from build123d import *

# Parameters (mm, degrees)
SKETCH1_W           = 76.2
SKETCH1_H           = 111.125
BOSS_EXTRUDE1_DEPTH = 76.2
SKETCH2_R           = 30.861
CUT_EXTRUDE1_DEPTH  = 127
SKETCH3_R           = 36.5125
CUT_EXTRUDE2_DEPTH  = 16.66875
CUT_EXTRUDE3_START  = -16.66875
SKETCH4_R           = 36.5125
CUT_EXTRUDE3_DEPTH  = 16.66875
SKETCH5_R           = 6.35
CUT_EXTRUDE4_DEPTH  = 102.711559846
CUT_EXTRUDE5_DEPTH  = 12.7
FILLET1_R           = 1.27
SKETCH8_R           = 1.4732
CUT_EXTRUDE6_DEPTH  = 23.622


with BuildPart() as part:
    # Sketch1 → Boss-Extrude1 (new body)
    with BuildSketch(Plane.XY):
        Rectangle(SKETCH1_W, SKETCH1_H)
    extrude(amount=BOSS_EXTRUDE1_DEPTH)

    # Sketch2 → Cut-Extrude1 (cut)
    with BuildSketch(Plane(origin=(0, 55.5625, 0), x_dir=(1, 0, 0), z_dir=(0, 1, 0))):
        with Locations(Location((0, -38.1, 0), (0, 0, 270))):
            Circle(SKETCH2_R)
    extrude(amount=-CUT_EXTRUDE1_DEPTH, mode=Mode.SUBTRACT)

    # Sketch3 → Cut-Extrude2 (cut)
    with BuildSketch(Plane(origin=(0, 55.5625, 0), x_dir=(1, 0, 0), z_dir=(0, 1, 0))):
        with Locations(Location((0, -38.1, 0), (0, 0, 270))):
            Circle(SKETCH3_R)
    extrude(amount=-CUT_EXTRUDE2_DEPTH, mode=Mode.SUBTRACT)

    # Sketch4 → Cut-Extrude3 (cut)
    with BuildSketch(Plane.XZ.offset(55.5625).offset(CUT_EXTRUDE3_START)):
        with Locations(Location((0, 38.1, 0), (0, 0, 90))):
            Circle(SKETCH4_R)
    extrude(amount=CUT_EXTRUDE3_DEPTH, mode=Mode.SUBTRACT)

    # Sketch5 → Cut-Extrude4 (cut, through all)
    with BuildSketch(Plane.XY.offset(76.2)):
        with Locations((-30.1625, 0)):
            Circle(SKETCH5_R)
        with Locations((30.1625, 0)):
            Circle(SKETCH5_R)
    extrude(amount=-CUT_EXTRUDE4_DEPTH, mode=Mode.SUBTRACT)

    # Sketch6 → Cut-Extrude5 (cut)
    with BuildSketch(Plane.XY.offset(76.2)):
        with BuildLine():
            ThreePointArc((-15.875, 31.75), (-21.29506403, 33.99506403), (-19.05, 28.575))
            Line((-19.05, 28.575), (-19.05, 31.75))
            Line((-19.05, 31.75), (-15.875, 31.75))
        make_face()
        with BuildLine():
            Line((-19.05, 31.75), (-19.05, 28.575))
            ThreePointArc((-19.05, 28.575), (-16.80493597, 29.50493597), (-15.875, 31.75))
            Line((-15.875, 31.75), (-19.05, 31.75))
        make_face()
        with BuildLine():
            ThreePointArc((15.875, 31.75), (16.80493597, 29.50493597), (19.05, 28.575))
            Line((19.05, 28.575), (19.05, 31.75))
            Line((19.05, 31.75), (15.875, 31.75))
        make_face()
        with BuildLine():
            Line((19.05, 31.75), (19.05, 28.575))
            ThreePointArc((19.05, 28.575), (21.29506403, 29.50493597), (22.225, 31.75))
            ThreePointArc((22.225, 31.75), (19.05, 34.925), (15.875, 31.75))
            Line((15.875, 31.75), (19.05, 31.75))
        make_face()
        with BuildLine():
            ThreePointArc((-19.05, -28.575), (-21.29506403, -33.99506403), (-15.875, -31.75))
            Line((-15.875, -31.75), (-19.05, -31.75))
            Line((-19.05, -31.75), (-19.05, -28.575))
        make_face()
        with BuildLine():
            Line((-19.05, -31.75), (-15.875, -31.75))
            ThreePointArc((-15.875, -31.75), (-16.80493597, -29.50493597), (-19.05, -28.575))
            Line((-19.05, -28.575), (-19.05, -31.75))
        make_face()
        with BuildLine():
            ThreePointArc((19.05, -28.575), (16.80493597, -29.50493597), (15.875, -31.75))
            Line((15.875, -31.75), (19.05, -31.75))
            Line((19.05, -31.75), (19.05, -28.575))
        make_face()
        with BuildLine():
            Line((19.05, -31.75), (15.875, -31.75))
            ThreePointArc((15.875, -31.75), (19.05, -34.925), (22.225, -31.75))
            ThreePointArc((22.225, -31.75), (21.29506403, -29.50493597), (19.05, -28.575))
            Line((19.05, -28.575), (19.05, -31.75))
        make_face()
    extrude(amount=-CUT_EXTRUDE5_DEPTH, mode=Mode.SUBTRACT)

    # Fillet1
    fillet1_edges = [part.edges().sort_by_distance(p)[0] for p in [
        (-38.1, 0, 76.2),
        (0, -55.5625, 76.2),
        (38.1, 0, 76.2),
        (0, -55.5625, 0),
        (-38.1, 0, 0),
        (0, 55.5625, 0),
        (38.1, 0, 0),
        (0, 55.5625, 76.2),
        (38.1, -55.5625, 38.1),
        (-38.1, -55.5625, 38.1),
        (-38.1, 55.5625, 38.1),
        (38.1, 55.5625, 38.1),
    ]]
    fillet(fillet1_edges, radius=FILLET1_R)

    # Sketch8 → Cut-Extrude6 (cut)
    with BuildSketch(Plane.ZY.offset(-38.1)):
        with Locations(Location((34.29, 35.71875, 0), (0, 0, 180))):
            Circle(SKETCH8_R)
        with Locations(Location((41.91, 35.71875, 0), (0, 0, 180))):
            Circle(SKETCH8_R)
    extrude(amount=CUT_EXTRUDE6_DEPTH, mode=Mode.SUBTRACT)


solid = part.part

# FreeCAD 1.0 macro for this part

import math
import FreeCAD as App
import Part
import Sketcher

V = App.Vector
Q = App.Units.Quantity


def edges_at(feature, points):
    """Names of the edges that pass closest to the given points."""
    edges = feature.Shape.Edges
    near = lambda p: min(range(len(edges)), key=lambda i: edges[i].distToShape(Part.Vertex(*p))[0])
    return sorted({f"Edge{near(p) + 1}" for p in points})

doc = App.newDocument("Part")
body = doc.addObject("PartDesign::Body", "Body")

sketch1 = body.newObject("Sketcher::SketchObject", "Sketch")
sketch1.AttachmentSupport = (doc.getObject("XY_Plane"), [""])
sketch1.MapMode = "FlatFace"
sketch1.addGeometry(Part.LineSegment(V(-38, 56, 0), V(-38, -56, 0)), False)
sketch1.addGeometry(Part.LineSegment(V(-38, -56, 0), V(38, -56, 0)), False)
sketch1.addGeometry(Part.LineSegment(V(38, -56, 0), V(38, 56, 0)), False)
sketch1.addGeometry(Part.LineSegment(V(38, 56, 0), V(-38, 56, 0)), False)
sketch1.addConstraint(Sketcher.Constraint("Coincident", 0, 2, 1, 1))
sketch1.addConstraint(Sketcher.Constraint("Coincident", 1, 2, 2, 1))
sketch1.addConstraint(Sketcher.Constraint("Coincident", 2, 2, 3, 1))
sketch1.addConstraint(Sketcher.Constraint("Coincident", 3, 2, 0, 1))
sketch1.addConstraint(Sketcher.Constraint("Vertical", 0))
sketch1.addConstraint(Sketcher.Constraint("Horizontal", 1))
sketch1.addConstraint(Sketcher.Constraint("Vertical", 2))
sketch1.addConstraint(Sketcher.Constraint("Horizontal", 3))
sketch1.addConstraint(Sketcher.Constraint("Symmetric", 0, 2, 2, 2, -1, 1))
sketch1.addConstraint(Sketcher.Constraint("DistanceX", 1, 1, 1, 2, Q("3 in")))
sketch1.addConstraint(Sketcher.Constraint("DistanceY", 0, 2, 0, 1, Q("4.375 in")))
pad1 = body.newObject("PartDesign::Pad", "Pad")
pad1.Profile = sketch1
pad1.Length = Q("3 in")

sketch2 = body.newObject("Sketcher::SketchObject", "Sketch001")
sketch2.AttachmentSupport = (doc.getObject("XZ_Plane"), [""])
sketch2.MapMode = "FlatFace"
sketch2.AttachmentOffset = App.Placement(V(0, 0, -2.1875 * 25.4), App.Rotation())
sketch2.addGeometry(Part.Circle(V(0, 38, 0), V(0, 0, 1), 31), False)
sketch2.addConstraint(Sketcher.Constraint("PointOnObject", 0, 3, -2))
sketch2.addConstraint(Sketcher.Constraint("Diameter", 0, Q("2.43 in")))
sketch2.addConstraint(Sketcher.Constraint("DistanceY", -1, 1, 0, 3, Q("1.5 in")))
pocket1 = body.newObject("PartDesign::Pocket", "Pocket")
pocket1.Profile = sketch2
pocket1.Length = Q("5 in")
pocket1.Reversed = True

sketch3 = body.newObject("Sketcher::SketchObject", "Sketch002")
sketch3.AttachmentSupport = (doc.getObject("XZ_Plane"), [""])
sketch3.MapMode = "FlatFace"
sketch3.AttachmentOffset = App.Placement(V(0, 0, -2.1875 * 25.4), App.Rotation())
sketch3.addGeometry(Part.Circle(V(0, 38, 0), V(0, 0, 1), 37), False)
sketch3.addConstraint(Sketcher.Constraint("PointOnObject", 0, 3, -2))
sketch3.addConstraint(Sketcher.Constraint("Diameter", 0, Q("2.875 in")))
sketch3.addConstraint(Sketcher.Constraint("DistanceY", -1, 1, 0, 3, Q("1.5 in")))
pocket2 = body.newObject("PartDesign::Pocket", "Pocket001")
pocket2.Profile = sketch3
pocket2.Length = Q("0.65625 in")
pocket2.Reversed = True

sketch4 = body.newObject("Sketcher::SketchObject", "Sketch003")
sketch4.AttachmentSupport = (doc.getObject("XZ_Plane"), [""])
sketch4.MapMode = "FlatFace"
sketch4.AttachmentOffset = App.Placement(V(0, 0, 1.53125 * 25.4), App.Rotation())
sketch4.addGeometry(Part.Circle(V(0, 38, 0), V(0, 0, 1), 37), False)
sketch4.addConstraint(Sketcher.Constraint("PointOnObject", 0, 3, -2))
sketch4.addConstraint(Sketcher.Constraint("Diameter", 0, Q("2.875 in")))
sketch4.addConstraint(Sketcher.Constraint("DistanceY", -1, 1, 0, 3, Q("1.5 in")))
pocket3 = body.newObject("PartDesign::Pocket", "Pocket002")
pocket3.Profile = sketch4
pocket3.Length = Q("0.65625 in")
pocket3.Reversed = True

sketch5 = body.newObject("Sketcher::SketchObject", "Sketch004")
sketch5.AttachmentSupport = (doc.getObject("XY_Plane"), [""])
sketch5.MapMode = "FlatFace"
sketch5.AttachmentOffset = App.Placement(V(0, 0, 3 * 25.4), App.Rotation())
sketch5.addGeometry(Part.Circle(V(-30, 0, 0), V(0, 0, 1), 6), False)
sketch5.addGeometry(Part.Circle(V(30, 0, 0), V(0, 0, 1), 6), False)
sketch5.addConstraint(Sketcher.Constraint("Equal", 0, 1))
sketch5.addConstraint(Sketcher.Constraint("Symmetric", 0, 3, 1, 3, -1, 1))
sketch5.addConstraint(Sketcher.Constraint("PointOnObject", 0, 3, -1))
sketch5.addConstraint(Sketcher.Constraint("Diameter", 0, Q("0.5 in")))
sketch5.addConstraint(Sketcher.Constraint("DistanceX", 0, 3, -1, 1, Q("1.1875 in")))
pocket4 = body.newObject("PartDesign::Pocket", "Pocket003")
pocket4.Profile = sketch5
pocket4.Type = "ThroughAll"

sketch6 = body.newObject("Sketcher::SketchObject", "Sketch005")
sketch6.AttachmentSupport = (doc.getObject("XY_Plane"), [""])
sketch6.MapMode = "FlatFace"
sketch6.AttachmentOffset = App.Placement(V(0, 0, 3 * 25.4), App.Rotation())
sketch6.addGeometry(Part.ArcOfCircle(Part.Circle(V(-19.1, 31.8, 0), V(0, 0, 1), 3.2), math.radians(0), math.radians(270)), False)
sketch6.addGeometry(Part.ArcOfCircle(Part.Circle(V(-19.1, 31.8, 0), V(0, 0, 1), 3.2), math.radians(-90), math.radians(0)), False)
sketch6.addGeometry(Part.ArcOfCircle(Part.Circle(V(19.1, 31.8, 0), V(0, 0, 1), 3.2), math.radians(-180), math.radians(-90)), False)
sketch6.addGeometry(Part.ArcOfCircle(Part.Circle(V(19, 31.8, 0), V(0, 0, 1), 3.2), math.radians(-90), math.radians(0)), False)
sketch6.addGeometry(Part.ArcOfCircle(Part.Circle(V(19.1, 31.8, 0), V(0, 0, 1), 3.2), math.radians(0), math.radians(180)), False)
sketch6.addGeometry(Part.ArcOfCircle(Part.Circle(V(-19.1, -31.8, 0), V(0, 0, 1), 3.2), math.radians(90), math.radians(360)), False)
sketch6.addGeometry(Part.ArcOfCircle(Part.Circle(V(-19.1, -31.8, 0), V(0, 0, 1), 3.2), math.radians(0), math.radians(90)), False)
sketch6.addGeometry(Part.ArcOfCircle(Part.Circle(V(19.1, -31.8, 0), V(0, 0, 1), 3.2), math.radians(90), math.radians(180)), False)
sketch6.addGeometry(Part.ArcOfCircle(Part.Circle(V(19.1, -31.8, 0), V(0, 0, 1), 3.2), math.radians(180), math.radians(360)), False)
sketch6.addGeometry(Part.ArcOfCircle(Part.Circle(V(19, -31.8, 0), V(0, 0, 1), 3.2), math.radians(0), math.radians(90)), False)
sketch6.addConstraint(Sketcher.Constraint("Tangent", 0, 1, 1, 2))
sketch6.addConstraint(Sketcher.Constraint("Coincident", 1, 1, 0, 2))
sketch6.addConstraint(Sketcher.Constraint("Tangent", 2, 2, 3, 1))
sketch6.addConstraint(Sketcher.Constraint("Tangent", 3, 2, 4, 1))
sketch6.addConstraint(Sketcher.Constraint("Tangent", 4, 2, 2, 1))
sketch6.addConstraint(Sketcher.Constraint("Tangent", 5, 1, 6, 2))
sketch6.addConstraint(Sketcher.Constraint("Coincident", 6, 1, 5, 2))
sketch6.addConstraint(Sketcher.Constraint("Tangent", 7, 2, 8, 1))
sketch6.addConstraint(Sketcher.Constraint("Tangent", 8, 2, 9, 1))
sketch6.addConstraint(Sketcher.Constraint("Tangent", 9, 2, 7, 1))
sketch6.addConstraint(Sketcher.Constraint("Equal", 1, 2))
sketch6.addConstraint(Sketcher.Constraint("Equal", 4, 5))
sketch6.addConstraint(Sketcher.Constraint("Equal", 6, 7))
sketch6.addConstraint(Sketcher.Constraint("Symmetric", 2, 3, 5, 3, -1, 1))
sketch6.addConstraint(Sketcher.Constraint("Symmetric", 0, 3, 7, 3, -1, 1))
sketch6.addConstraint(Sketcher.Constraint("Symmetric", 0, 3, 2, 3, -2))
sketch6.addConstraint(Sketcher.Constraint("Horizontal", 4, 3, 0, 1))
sketch6.addConstraint(Sketcher.Constraint("Horizontal", 0, 1, 3, 2))
sketch6.addConstraint(Sketcher.Constraint("Horizontal", 3, 2, 4, 2))
sketch6.addConstraint(Sketcher.Constraint("Horizontal", 9, 3, 6, 1))
sketch6.addConstraint(Sketcher.Constraint("Horizontal", 6, 1, 7, 2))
sketch6.addConstraint(Sketcher.Constraint("Horizontal", 7, 2, 8, 2))
sketch6.addConstraint(Sketcher.Constraint("Vertical", 6, 3, 1, 1))
sketch6.addConstraint(Sketcher.Constraint("Vertical", 9, 3, 2, 2))
sketch6.addConstraint(Sketcher.Constraint("Vertical", 1, 1, 5, 1))
sketch6.addConstraint(Sketcher.Constraint("Vertical", 2, 2, 9, 2))
sketch6.addConstraint(Sketcher.Constraint("Radius", 0, Q("0.125 in")))
sketch6.addConstraint(Sketcher.Constraint("DistanceX", 0, 3, 2, 3, Q("1.5 in")))
sketch6.addConstraint(Sketcher.Constraint("DistanceY", 5, 3, 0, 3, Q("2.5 in")))
pocket5 = body.newObject("PartDesign::Pocket", "Pocket004")
pocket5.Profile = sketch6
pocket5.Length = Q("0.5 in")
doc.recompute()

fillet = body.newObject("PartDesign::Fillet", "Fillet")
fillet.Base = (pocket5, edges_at(pocket5, [
    (-38.1, 0, 76.2),
    (0, -55.562, 76.2),
    (38.1, 0, 76.2),
    (0, -55.562, 0),
    (-38.1, 0, 0),
    (0, 55.562, 0),
    (38.1, 0, 0),
    (0, 55.562, 76.2),
    (38.1, -55.562, 38.1),
    (-38.1, -55.562, 38.1),
    (-38.1, 55.562, 38.1),
    (38.1, 55.562, 38.1),
]))
fillet.Radius = Q("0.05 in")

sketch7 = body.newObject("Sketcher::SketchObject", "Sketch006")
sketch7.AttachmentSupport = (doc.getObject("YZ_Plane"), [""])
sketch7.MapMode = "FlatFace"
sketch7.AttachmentOffset = App.Placement(V(0, 0, 1.5 * 25.4), App.Rotation())
sketch7.addGeometry(Part.Circle(V(35.7, 34.3, 0), V(0, 0, 1), 1.5), False)
sketch7.addGeometry(Part.Circle(V(35.7, 41.9, 0), V(0, 0, 1), 1.5), False)
sketch7.addConstraint(Sketcher.Constraint("Equal", 0, 1))
sketch7.addConstraint(Sketcher.Constraint("Vertical", 0, 3, 1, 3))
sketch7.addConstraint(Sketcher.Constraint("Diameter", 0, Q("0.116 in")))
sketch7.addConstraint(Sketcher.Constraint("DistanceY", 0, 3, 1, 3, Q("0.3 in")))
sketch7.addConstraint(Sketcher.Constraint("DistanceY", -1, 1, 0, 3, Q("1.35 in")))
sketch7.addConstraint(Sketcher.Constraint("DistanceX", -1, 1, 0, 3, Q("1.40625 in")))
pocket6 = body.newObject("PartDesign::Pocket", "Pocket005")
pocket6.Profile = sketch7
pocket6.Length = Q("0.93 in")

doc.recompute()
